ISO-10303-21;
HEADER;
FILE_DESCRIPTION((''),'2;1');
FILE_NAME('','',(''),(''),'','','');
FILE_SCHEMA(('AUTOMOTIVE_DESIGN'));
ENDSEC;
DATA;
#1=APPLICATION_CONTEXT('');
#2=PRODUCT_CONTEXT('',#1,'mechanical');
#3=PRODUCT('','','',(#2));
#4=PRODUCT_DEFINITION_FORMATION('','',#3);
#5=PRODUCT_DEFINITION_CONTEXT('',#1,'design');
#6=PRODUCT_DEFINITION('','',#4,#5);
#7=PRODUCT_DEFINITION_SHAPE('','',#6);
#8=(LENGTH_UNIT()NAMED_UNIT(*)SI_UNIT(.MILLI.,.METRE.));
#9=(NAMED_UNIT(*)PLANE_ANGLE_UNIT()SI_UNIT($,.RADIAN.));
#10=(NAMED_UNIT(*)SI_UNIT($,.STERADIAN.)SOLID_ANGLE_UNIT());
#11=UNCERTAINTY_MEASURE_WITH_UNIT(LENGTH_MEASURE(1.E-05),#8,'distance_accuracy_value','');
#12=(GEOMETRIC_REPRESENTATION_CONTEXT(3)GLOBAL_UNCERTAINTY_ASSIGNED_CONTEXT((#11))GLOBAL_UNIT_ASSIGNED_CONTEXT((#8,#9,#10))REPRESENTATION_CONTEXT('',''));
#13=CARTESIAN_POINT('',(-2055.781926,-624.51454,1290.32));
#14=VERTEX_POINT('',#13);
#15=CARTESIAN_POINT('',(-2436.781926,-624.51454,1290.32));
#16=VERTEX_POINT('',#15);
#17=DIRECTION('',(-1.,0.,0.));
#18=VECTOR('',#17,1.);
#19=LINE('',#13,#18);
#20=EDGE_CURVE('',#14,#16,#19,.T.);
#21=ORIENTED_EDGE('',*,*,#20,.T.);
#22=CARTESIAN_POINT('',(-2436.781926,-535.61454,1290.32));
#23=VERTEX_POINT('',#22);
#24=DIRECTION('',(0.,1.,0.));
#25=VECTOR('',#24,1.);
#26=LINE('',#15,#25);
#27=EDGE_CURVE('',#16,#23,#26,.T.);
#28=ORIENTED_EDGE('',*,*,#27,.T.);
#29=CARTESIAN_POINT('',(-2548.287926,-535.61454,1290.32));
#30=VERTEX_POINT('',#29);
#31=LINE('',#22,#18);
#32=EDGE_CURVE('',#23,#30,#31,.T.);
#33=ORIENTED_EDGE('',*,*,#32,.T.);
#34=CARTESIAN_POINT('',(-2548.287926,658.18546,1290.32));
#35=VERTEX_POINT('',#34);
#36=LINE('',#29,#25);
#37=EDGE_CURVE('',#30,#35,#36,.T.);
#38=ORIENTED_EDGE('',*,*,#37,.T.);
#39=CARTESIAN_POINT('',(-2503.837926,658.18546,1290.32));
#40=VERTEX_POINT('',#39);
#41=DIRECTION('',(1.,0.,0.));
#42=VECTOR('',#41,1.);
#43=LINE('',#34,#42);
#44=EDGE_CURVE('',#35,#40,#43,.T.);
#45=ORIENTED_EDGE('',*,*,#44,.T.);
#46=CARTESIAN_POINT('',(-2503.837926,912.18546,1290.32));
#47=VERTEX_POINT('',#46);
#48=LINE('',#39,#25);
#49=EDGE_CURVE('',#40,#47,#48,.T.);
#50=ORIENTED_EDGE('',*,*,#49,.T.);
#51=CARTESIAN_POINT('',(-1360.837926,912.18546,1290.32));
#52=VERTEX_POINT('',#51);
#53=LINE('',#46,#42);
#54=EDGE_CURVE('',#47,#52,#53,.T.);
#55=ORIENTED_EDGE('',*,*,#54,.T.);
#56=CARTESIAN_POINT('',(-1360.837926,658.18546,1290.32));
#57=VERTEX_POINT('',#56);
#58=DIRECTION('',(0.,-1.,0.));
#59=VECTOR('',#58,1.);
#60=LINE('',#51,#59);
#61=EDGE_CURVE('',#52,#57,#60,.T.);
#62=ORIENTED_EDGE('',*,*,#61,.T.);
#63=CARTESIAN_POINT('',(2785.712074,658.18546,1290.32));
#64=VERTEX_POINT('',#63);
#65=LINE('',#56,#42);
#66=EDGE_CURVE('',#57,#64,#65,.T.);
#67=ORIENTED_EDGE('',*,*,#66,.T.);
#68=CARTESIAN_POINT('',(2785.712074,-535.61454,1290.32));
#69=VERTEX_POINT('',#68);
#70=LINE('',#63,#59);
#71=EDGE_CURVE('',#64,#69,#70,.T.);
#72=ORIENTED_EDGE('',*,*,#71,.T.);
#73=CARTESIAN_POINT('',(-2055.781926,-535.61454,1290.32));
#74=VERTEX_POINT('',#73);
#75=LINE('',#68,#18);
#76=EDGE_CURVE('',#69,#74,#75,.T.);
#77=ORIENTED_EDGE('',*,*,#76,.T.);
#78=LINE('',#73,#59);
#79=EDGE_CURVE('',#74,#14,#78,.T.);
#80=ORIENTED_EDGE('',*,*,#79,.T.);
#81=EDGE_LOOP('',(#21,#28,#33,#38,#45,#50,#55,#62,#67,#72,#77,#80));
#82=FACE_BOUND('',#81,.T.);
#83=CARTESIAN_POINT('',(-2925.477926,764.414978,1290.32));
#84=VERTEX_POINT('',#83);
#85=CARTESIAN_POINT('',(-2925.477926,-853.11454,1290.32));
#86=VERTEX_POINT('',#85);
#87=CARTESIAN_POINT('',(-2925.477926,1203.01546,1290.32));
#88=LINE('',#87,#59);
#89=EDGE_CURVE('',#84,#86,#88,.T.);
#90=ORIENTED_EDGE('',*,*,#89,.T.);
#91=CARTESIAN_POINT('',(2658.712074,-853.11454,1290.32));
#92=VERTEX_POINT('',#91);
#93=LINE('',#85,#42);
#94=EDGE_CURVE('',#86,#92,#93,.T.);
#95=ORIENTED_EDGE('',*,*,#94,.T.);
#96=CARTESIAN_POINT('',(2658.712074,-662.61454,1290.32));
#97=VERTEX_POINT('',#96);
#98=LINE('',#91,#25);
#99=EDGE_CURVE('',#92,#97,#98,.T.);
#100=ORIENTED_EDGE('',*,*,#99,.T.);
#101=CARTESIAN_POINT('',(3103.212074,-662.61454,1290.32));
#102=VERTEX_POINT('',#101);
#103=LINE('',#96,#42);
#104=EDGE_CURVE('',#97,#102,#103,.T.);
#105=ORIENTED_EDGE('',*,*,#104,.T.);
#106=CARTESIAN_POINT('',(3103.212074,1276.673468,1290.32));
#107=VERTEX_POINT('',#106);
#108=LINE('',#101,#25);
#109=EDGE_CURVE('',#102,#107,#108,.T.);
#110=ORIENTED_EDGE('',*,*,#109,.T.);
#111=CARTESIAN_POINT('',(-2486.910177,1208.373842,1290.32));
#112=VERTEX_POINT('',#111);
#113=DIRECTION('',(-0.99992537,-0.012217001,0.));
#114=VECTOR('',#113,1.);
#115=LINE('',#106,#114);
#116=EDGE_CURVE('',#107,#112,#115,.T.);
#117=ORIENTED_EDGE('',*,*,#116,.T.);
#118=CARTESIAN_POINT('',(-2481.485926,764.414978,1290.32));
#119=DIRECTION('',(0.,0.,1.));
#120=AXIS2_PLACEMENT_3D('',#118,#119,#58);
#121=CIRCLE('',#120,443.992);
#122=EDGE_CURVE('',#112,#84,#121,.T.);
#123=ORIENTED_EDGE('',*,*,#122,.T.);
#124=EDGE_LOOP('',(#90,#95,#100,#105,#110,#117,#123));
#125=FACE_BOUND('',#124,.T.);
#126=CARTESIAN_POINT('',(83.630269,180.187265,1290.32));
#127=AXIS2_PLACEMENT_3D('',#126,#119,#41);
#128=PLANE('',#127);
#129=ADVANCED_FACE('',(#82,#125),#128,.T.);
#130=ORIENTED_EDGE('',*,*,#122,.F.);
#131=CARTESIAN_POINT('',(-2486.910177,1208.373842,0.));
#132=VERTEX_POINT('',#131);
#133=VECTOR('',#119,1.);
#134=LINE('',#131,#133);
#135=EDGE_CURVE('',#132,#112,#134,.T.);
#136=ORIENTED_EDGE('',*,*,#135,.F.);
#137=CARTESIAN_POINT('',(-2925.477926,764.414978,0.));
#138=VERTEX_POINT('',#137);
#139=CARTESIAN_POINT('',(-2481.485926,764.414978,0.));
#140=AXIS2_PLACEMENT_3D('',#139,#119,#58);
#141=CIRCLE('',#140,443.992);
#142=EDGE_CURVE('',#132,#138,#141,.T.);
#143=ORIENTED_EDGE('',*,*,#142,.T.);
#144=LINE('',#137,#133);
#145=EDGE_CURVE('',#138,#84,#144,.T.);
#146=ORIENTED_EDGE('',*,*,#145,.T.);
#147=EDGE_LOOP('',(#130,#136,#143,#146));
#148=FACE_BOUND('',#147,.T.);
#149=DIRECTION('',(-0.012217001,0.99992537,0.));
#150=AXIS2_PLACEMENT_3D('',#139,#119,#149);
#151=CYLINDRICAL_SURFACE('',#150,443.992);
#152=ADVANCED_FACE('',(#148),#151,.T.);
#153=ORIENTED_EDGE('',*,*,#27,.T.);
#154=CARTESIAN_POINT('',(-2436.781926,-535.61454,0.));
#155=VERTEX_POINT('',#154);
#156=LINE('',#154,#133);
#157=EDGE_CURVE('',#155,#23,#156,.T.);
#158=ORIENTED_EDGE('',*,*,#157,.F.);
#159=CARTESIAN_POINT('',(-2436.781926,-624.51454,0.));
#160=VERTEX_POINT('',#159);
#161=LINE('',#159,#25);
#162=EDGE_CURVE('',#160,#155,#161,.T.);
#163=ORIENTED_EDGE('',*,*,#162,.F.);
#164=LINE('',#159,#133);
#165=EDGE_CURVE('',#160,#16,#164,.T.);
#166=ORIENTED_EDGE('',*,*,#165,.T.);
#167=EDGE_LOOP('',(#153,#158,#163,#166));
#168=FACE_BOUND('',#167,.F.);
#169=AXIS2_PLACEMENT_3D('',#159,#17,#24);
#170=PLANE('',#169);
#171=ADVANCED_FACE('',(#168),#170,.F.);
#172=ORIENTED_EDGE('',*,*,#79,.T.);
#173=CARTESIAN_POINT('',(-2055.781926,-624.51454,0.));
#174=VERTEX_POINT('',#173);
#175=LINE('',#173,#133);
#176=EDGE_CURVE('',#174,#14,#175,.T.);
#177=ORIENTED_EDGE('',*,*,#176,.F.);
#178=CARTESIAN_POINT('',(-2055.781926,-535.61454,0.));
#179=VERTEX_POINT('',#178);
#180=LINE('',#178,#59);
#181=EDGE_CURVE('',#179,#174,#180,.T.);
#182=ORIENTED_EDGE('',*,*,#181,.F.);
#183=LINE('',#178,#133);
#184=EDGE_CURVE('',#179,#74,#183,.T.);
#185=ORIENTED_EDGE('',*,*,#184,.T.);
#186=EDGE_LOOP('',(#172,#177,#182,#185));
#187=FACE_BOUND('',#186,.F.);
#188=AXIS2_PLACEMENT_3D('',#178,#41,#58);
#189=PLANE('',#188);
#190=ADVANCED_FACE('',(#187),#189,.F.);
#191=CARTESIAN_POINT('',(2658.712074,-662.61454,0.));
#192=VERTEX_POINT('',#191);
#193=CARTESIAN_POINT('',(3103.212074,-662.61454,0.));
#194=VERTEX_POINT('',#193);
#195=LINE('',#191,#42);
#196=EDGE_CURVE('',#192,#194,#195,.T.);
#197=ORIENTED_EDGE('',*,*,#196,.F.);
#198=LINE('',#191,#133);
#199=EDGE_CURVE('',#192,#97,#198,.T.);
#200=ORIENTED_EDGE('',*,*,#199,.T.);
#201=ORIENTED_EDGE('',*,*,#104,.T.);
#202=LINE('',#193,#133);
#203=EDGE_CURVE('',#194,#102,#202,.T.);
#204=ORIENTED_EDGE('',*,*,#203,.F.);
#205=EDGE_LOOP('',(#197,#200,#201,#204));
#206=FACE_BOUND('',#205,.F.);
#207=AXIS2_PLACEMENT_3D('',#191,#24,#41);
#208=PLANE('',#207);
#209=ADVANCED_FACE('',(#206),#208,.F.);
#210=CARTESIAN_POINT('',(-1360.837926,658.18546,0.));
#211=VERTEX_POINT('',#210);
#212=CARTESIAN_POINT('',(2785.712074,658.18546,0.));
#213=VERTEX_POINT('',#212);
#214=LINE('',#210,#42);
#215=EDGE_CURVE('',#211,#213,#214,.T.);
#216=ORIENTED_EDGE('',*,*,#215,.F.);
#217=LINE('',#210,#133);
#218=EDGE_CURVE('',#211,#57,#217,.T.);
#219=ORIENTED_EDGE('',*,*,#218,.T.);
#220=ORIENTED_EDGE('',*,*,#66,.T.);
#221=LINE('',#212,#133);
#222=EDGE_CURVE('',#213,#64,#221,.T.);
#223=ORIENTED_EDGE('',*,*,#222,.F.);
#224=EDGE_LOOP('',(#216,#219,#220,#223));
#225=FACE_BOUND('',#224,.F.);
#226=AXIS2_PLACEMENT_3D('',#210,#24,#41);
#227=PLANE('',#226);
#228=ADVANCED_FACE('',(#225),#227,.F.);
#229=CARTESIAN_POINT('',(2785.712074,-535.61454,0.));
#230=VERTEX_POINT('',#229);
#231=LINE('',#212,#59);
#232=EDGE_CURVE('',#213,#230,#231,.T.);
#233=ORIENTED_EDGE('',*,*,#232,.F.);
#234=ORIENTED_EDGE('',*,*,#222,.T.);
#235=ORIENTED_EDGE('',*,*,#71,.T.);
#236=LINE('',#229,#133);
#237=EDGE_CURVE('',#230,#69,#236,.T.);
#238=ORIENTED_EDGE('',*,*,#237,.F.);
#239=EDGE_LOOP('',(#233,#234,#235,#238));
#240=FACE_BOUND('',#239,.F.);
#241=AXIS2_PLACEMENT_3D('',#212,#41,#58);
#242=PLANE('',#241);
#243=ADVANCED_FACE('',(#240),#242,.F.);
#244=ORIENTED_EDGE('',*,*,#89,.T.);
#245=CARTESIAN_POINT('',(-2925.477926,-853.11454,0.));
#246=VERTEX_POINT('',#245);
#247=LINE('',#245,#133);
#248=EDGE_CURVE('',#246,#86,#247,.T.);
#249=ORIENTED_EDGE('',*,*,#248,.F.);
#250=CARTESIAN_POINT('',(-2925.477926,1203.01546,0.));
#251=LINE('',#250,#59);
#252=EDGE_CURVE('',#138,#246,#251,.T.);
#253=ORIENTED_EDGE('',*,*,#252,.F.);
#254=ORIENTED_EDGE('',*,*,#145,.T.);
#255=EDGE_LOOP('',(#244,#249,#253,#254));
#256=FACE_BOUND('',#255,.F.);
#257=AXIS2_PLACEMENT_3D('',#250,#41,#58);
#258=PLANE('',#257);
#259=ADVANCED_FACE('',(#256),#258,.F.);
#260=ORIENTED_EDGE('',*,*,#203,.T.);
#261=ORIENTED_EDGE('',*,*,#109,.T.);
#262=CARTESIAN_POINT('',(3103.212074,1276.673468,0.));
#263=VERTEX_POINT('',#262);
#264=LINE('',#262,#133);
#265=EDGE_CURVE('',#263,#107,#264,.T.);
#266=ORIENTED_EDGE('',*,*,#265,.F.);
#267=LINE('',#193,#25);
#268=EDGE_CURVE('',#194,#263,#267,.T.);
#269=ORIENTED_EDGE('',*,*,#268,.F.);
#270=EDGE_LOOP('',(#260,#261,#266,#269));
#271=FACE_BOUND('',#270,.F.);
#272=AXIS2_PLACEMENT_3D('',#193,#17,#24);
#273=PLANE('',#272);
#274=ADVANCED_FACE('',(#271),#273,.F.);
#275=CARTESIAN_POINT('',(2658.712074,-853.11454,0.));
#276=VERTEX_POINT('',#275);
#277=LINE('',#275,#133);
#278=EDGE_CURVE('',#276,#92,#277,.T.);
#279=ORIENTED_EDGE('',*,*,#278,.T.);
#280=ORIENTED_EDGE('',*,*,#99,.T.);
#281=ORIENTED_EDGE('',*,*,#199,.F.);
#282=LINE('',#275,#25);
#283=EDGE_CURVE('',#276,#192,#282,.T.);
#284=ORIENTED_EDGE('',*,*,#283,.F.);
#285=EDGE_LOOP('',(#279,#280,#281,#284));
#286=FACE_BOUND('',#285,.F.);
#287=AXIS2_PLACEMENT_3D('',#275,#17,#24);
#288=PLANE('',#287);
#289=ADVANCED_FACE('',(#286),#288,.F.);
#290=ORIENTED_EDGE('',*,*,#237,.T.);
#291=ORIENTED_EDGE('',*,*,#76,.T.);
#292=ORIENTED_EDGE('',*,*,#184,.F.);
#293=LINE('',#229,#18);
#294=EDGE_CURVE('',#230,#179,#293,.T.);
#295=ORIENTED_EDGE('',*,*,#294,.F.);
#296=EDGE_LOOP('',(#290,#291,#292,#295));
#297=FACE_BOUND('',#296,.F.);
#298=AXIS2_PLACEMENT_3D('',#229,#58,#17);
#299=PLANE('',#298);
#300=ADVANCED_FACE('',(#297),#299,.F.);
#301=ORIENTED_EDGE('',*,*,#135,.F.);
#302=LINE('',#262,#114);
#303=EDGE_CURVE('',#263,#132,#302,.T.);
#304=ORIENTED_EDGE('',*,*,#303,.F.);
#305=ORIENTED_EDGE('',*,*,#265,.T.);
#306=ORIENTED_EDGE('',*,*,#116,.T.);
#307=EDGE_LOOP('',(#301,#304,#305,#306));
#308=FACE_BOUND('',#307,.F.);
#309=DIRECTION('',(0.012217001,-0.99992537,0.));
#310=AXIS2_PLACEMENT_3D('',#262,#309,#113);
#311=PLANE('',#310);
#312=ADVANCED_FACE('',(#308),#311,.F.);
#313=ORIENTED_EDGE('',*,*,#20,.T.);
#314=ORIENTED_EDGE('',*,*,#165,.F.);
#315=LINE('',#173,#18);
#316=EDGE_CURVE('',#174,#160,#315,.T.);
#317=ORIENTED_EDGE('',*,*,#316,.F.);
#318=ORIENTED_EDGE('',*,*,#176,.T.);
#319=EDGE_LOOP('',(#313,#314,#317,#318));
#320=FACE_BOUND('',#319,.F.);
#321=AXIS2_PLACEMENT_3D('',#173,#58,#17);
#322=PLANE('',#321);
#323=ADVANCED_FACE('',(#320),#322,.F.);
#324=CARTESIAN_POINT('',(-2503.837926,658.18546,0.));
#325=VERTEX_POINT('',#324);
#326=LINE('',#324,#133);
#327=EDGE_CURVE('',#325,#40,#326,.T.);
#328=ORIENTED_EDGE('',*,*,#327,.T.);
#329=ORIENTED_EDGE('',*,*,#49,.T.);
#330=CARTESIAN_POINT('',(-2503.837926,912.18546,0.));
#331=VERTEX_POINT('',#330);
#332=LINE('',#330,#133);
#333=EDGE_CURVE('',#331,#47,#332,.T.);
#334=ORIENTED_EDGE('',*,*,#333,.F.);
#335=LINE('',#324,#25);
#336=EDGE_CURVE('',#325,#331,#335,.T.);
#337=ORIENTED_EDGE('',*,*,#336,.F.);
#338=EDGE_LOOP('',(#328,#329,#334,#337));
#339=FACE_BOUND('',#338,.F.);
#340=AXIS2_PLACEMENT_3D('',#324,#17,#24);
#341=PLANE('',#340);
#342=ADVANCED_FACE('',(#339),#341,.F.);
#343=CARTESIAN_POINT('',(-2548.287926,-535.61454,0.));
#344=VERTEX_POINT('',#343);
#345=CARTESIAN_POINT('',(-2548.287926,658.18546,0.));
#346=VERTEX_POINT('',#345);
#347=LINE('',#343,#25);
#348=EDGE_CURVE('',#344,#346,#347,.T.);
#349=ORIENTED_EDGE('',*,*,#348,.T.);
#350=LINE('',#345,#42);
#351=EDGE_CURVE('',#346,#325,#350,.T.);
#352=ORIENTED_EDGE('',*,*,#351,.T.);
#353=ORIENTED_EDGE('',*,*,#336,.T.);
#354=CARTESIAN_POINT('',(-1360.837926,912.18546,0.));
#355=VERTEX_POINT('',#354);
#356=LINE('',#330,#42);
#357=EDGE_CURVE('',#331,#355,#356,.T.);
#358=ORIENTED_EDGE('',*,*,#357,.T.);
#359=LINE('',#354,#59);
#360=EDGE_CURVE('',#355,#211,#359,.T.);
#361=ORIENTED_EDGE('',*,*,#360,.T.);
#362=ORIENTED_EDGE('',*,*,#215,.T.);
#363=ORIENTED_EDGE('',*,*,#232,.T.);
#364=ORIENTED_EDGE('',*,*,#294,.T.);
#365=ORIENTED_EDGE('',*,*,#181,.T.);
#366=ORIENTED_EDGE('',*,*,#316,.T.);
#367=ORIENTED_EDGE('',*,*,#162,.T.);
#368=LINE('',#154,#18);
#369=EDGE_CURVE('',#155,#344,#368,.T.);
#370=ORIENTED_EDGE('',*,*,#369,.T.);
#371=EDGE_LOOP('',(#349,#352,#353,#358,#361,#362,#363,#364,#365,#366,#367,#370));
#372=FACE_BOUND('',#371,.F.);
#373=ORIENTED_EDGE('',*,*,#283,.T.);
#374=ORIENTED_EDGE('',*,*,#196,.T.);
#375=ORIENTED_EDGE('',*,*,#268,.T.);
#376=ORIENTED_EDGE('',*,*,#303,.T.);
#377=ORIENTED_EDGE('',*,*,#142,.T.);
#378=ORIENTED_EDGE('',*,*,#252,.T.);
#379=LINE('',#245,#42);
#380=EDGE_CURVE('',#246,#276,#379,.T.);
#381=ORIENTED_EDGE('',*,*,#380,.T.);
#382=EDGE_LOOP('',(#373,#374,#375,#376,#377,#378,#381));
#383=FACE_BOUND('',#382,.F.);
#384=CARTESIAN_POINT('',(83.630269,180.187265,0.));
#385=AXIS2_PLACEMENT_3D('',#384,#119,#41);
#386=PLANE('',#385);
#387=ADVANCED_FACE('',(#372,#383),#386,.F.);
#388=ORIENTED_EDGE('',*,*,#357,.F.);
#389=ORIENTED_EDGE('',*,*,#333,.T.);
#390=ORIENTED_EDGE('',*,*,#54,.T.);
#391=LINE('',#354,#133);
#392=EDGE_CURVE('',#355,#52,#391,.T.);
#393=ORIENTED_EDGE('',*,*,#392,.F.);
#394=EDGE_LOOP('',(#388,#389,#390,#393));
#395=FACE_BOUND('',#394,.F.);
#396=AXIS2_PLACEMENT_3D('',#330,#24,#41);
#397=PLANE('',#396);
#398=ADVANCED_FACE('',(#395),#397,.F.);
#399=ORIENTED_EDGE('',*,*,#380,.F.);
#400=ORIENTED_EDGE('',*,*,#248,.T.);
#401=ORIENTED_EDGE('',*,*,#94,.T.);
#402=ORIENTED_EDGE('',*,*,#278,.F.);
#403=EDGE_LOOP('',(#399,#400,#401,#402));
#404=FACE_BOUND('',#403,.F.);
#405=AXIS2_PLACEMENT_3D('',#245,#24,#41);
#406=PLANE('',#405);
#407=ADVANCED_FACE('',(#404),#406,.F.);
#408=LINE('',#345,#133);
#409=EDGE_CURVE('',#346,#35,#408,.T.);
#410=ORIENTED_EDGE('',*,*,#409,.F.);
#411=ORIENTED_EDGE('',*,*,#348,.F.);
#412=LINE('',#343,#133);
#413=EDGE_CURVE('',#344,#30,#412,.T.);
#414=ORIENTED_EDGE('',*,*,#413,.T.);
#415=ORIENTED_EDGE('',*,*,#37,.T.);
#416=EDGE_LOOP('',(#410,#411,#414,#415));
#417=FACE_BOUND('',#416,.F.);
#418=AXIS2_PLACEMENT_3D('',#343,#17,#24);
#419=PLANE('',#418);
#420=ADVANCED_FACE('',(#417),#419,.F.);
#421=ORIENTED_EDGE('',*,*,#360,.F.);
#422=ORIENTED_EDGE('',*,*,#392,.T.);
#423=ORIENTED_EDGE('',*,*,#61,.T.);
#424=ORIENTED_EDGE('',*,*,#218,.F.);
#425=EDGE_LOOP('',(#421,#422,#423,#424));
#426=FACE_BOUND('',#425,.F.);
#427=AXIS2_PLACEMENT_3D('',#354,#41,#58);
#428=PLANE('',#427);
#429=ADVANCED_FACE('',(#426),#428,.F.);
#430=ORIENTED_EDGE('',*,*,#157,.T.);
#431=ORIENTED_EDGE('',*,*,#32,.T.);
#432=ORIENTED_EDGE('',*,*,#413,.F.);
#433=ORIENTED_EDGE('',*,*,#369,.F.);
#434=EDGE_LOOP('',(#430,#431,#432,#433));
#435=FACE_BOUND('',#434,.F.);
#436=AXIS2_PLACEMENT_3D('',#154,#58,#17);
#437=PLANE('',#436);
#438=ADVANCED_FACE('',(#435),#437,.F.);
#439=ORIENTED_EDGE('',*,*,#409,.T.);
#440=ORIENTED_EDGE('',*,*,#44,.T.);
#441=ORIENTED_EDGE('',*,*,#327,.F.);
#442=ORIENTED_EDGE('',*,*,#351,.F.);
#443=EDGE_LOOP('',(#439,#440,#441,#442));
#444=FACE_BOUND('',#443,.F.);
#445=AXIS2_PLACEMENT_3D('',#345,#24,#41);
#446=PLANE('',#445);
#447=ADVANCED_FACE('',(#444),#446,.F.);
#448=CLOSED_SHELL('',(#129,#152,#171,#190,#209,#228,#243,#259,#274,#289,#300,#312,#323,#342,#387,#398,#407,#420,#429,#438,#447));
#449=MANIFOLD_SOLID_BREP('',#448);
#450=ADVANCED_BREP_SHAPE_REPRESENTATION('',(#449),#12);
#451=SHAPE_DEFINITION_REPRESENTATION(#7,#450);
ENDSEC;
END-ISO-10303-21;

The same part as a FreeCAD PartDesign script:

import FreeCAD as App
import Part
import Sketcher

V = App.Vector
Q = App.Units.Quantity


def edges_at(feature, points):
    """Names of the edges that pass closest to the given points."""
    edges = feature.Shape.Edges
    near = lambda p: min(range(len(edges)), key=lambda i: edges[i].distToShape(Part.Vertex(*p))[0])
    return sorted({f"Edge{near(p) + 1}" for p in points})


def add_polygon(sketch, points):
    """Adds a closed chain of lines whose ends are joined by coincident constraints."""
    first, n = sketch.GeometryCount, len(points)
    for a, b in zip(points, points[1:] + points[:1]):
        sketch.addGeometry(Part.LineSegment(App.Vector(*a, 0), App.Vector(*b, 0)), False)
    for i in range(n):
        sketch.addConstraint(Sketcher.Constraint("Coincident", first + i, 2, first + (i + 1) % n, 1))

doc = App.newDocument("Part")
params = doc.addObject("Spreadsheet::Sheet", "Params")
for row, (alias, value) in enumerate([
    ("sketch1_width", "45 in"),
    ("sketch1_width2", "15 in"),
    ("sketch1_height", "47 in"),
    ("sketch1_height2", "10 in"),
    ("sketch1_width3", "17.5 in"),
    ("pad1_length", "50.8 in"),
    ("fillet_radius", "17.48 in"),
], start=1):
    params.set(f"A{row}", alias)
    params.set(f"B{row}", "=" + value)
    params.setAlias(f"B{row}", alias)

body = doc.addObject("PartDesign::Body", "Body")

# Sketch on XY plane
sketch1 = body.newObject("Sketcher::SketchObject", "Sketch")
sketch1.AttachmentSupport = (doc.getObject("XY_Plane"), [""])
sketch1.MapMode = "FlatFace"
add_polygon(sketch1, [(3103, -663), (3103, 1277), (-2925, 1203), (-2925, -853), (2659, -853), (2659, -663)])  # lines 0-5
add_polygon(sketch1, [(-2437, -625), (-2437, -536), (-2548, -536), (-2548, 658), (-2504, 658), (-2504, 912), (-1361, 912), (-1361, 658), (2786, 658), (2786, -536), (-2056, -536), (-2056, -625)])  # lines 6-17
sketch1.addConstraint(Sketcher.Constraint("Vertical", 0))
sketch1.addConstraint(Sketcher.Constraint("Vertical", 2))
sketch1.addConstraint(Sketcher.Constraint("Horizontal", 3))
sketch1.addConstraint(Sketcher.Constraint("Vertical", 4))
sketch1.addConstraint(Sketcher.Constraint("Horizontal", 5))
sketch1.addConstraint(Sketcher.Constraint("Vertical", 6))
sketch1.addConstraint(Sketcher.Constraint("Horizontal", 7))
sketch1.addConstraint(Sketcher.Constraint("Vertical", 8))
sketch1.addConstraint(Sketcher.Constraint("Horizontal", 9))
sketch1.addConstraint(Sketcher.Constraint("Vertical", 10))
sketch1.addConstraint(Sketcher.Constraint("Horizontal", 11))
sketch1.addConstraint(Sketcher.Constraint("Vertical", 12))
sketch1.addConstraint(Sketcher.Constraint("Horizontal", 13))
sketch1.addConstraint(Sketcher.Constraint("Vertical", 14))
sketch1.addConstraint(Sketcher.Constraint("Horizontal", 15))
sketch1.addConstraint(Sketcher.Constraint("Vertical", 16))
sketch1.addConstraint(Sketcher.Constraint("Horizontal", 17))
sketch1.addConstraint(Sketcher.Constraint("Horizontal", 9, 2, 12, 2))
sketch1.addConstraint(Sketcher.Constraint("Horizontal", 7, 2, 14, 2))
sketch1.addConstraint(Sketcher.Constraint("DistanceX", 11, 1, 11, 2, Q("45 in")))
sketch1.addConstraint(Sketcher.Constraint("DistanceX", 17, 2, 17, 1, Q("15 in")))
sketch1.addConstraint(Sketcher.Constraint("DistanceY", 8, 1, 8, 2, Q("47 in")))
sketch1.addConstraint(Sketcher.Constraint("DistanceY", 10, 1, 10, 2, Q("10 in")))
sketch1.addConstraint(Sketcher.Constraint("DistanceX", 5, 1, 5, 2, Q("17.5 in")))
sketch1.addConstraint(Sketcher.Constraint("DistanceY", 4, 1, 4, 2, Q("7.5 in")))
sketch1.addConstraint(Sketcher.Constraint("DistanceY", 6, 1, 6, 2, Q("3.5 in")))
sketch1.addConstraint(Sketcher.Constraint("DistanceY", 4, 2, 6, 2, Q("5 in")))
sketch1.addConstraint(Sketcher.Constraint("DistanceX", 7, 2, 4, 2, Q("205 in")))
sketch1.addConstraint(Sketcher.Constraint("DistanceX", 4, 2, 13, 2, Q("5 in")))
sketch1.addConstraint(Sketcher.Constraint("DistanceX", 3, 1, 3, 2, Q("219.85 in")))
sketch1.addConstraint(Sketcher.Constraint("DistanceX", 7, 2, 7, 1, Q("4.39 in")))
sketch1.addConstraint(Sketcher.Constraint("DistanceX", 9, 1, 9, 2, Q("1.75 in")))
sketch1.addConstraint(Sketcher.Constraint("DistanceY", 2, 2, 2, 1, Q("80.95 in")))
sketch1.addConstraint(Sketcher.Constraint("Angle", 1, Q("-179.3 deg")))
sketch1.addConstraint(Sketcher.Constraint("DistanceY", -1, 1, 0, 2, Q("1276.673468 mm")))
sketch1.addConstraint(Sketcher.Constraint("DistanceX", -1, 1, 0, 2, Q("3103.212074 mm")))
sketch1.setExpression("Constraints[37]", "Params.sketch1_width")
sketch1.setExpression("Constraints[38]", "Params.sketch1_width2")
sketch1.setExpression("Constraints[39]", "Params.sketch1_height")
sketch1.setExpression("Constraints[40]", "Params.sketch1_height2")
sketch1.setExpression("Constraints[41]", "Params.sketch1_width3")
pad1 = body.newObject("PartDesign::Pad", "Pad")
pad1.Profile = sketch1
pad1.setExpression("Length", "Params.pad1_length")
doc.recompute()

fillet = body.newObject("PartDesign::Fillet", "Fillet")
fillet.Base = (pad1, edges_at(pad1, [(-2925.478, 1203.015, 645.16)]))
fillet.setExpression("Radius", "Params.fillet_radius")

doc.recompute()
